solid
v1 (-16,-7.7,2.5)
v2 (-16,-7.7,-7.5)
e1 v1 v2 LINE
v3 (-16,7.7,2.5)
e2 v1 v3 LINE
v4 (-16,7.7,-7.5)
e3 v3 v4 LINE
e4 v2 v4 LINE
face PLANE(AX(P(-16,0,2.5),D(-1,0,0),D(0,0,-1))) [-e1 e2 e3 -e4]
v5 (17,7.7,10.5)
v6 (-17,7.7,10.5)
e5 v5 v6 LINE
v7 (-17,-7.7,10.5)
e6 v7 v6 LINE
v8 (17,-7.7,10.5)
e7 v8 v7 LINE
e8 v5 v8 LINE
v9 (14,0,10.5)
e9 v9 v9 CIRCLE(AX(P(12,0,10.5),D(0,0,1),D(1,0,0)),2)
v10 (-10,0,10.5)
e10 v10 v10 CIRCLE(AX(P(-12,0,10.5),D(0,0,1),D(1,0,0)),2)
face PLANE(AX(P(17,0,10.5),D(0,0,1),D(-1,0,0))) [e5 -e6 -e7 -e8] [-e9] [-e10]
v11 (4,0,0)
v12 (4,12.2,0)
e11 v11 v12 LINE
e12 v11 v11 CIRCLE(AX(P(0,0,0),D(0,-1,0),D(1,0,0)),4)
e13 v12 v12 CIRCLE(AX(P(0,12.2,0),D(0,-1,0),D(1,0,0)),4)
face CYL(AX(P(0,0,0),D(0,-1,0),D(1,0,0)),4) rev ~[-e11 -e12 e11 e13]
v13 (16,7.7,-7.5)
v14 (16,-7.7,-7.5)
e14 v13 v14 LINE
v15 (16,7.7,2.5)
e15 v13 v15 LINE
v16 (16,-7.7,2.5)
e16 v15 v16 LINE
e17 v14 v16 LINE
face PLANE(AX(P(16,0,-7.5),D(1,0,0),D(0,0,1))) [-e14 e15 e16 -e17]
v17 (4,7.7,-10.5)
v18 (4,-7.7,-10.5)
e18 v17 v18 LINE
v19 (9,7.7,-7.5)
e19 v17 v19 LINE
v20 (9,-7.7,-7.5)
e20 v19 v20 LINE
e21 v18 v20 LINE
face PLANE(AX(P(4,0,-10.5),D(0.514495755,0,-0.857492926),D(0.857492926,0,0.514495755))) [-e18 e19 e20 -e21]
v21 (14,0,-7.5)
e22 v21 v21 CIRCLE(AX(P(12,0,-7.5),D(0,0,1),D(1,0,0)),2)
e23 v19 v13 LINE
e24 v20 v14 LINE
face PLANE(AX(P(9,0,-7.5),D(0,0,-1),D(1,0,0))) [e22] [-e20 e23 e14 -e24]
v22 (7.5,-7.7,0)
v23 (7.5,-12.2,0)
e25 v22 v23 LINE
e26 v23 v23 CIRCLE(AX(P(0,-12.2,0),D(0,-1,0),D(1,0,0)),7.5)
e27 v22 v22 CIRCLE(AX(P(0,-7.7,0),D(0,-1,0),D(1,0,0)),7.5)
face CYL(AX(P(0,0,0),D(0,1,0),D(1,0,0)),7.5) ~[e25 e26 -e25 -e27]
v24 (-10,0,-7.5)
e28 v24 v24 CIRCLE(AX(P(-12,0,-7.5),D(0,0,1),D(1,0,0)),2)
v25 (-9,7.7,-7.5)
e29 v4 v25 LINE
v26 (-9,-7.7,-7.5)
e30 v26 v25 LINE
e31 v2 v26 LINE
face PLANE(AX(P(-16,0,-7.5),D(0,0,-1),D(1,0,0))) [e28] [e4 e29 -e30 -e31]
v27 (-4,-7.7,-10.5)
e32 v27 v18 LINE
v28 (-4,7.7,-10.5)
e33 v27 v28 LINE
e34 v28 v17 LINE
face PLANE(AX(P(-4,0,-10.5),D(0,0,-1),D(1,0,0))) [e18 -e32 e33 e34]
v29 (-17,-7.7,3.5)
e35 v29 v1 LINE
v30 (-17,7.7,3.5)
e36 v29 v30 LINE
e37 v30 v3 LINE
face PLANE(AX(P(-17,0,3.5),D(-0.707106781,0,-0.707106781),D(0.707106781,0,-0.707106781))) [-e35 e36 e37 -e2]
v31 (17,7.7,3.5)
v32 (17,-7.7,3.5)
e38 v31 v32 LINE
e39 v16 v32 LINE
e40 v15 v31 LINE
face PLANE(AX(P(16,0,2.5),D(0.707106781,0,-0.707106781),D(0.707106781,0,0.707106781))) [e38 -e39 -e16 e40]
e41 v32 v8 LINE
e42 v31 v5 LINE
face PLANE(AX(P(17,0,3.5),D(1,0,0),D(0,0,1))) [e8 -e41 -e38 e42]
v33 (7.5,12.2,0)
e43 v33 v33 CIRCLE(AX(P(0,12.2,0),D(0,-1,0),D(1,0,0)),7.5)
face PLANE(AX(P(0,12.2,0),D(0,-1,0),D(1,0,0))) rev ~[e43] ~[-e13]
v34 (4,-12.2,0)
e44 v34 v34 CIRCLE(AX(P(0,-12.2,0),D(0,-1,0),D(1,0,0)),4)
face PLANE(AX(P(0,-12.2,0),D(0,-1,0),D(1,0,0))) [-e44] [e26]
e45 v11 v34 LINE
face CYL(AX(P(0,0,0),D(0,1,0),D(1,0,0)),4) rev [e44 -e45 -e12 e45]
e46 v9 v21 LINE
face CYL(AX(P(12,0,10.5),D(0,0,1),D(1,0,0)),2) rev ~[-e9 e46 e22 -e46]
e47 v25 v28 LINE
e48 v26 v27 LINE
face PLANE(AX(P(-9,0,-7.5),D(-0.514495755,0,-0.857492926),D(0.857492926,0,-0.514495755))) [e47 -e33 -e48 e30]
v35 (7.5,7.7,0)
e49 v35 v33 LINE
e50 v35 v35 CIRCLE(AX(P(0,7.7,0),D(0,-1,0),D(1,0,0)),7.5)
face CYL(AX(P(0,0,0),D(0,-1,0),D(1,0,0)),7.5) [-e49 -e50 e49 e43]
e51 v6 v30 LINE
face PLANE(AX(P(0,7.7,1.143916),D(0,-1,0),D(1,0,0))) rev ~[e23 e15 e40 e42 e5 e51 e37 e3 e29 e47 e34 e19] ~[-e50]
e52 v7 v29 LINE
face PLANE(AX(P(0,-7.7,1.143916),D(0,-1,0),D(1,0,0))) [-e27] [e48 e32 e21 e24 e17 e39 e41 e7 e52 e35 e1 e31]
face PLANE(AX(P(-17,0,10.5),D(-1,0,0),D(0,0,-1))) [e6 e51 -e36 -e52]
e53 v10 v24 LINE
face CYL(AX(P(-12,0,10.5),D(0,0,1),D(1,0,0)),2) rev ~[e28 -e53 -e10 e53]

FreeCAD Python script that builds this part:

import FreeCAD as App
import Part
import Sketcher
Q = App.Units.Quantity

doc = App.newDocument("Part")
body = doc.addObject("PartDesign::Body", "Body")

# Sketch on XZ plane
sketch1 = body.newObject("Sketcher::SketchObject", "Sketch")
sketch1.AttachmentSupport = (doc.getObject("XZ_Plane"), [""])
sketch1.MapMode = "FlatFace"
sketch1.addGeometry(Part.LineSegment(App.Vector(-4, -10.5, 0), App.Vector(4, -10.5, 0)), False)
sketch1.addGeometry(Part.LineSegment(App.Vector(4, -10.5, 0), App.Vector(9, -7.5, 0)), False)
sketch1.addGeometry(Part.LineSegment(App.Vector(9, -7.5, 0), App.Vector(16, -7.5, 0)), False)
sketch1.addGeometry(Part.LineSegment(App.Vector(16, -7.5, 0), App.Vector(16, 2.5, 0)), False)
sketch1.addGeometry(Part.LineSegment(App.Vector(16, 2.5, 0), App.Vector(17, 3.5, 0)), False)
sketch1.addGeometry(Part.LineSegment(App.Vector(17, 3.5, 0), App.Vector(17, 10.5, 0)), False)
sketch1.addGeometry(Part.LineSegment(App.Vector(17, 10.5, 0), App.Vector(-17, 10.5, 0)), False)
sketch1.addGeometry(Part.LineSegment(App.Vector(-17, 10.5, 0), App.Vector(-17, 3.5, 0)), False)
sketch1.addGeometry(Part.LineSegment(App.Vector(-17, 3.5, 0), App.Vector(-16, 2.5, 0)), False)
sketch1.addGeometry(Part.LineSegment(App.Vector(-16, 2.5, 0), App.Vector(-16, -7.5, 0)), False)
sketch1.addGeometry(Part.LineSegment(App.Vector(-16, -7.5, 0), App.Vector(-9, -7.5, 0)), False)
sketch1.addGeometry(Part.LineSegment(App.Vector(-9, -7.5, 0), App.Vector(-4, -10.5, 0)), False)
sketch1.addGeometry(Part.Circle(App.Vector(0, 0, 0), App.Vector(0, 0, 1), 7.5), False)
sketch1.addConstraint(Sketcher.Constraint("Coincident", 0, 2, 1, 1))
sketch1.addConstraint(Sketcher.Constraint("Coincident", 1, 2, 2, 1))
sketch1.addConstraint(Sketcher.Constraint("Coincident", 2, 2, 3, 1))
sketch1.addConstraint(Sketcher.Constraint("Coincident", 3, 2, 4, 1))
sketch1.addConstraint(Sketcher.Constraint("Coincident", 4, 2, 5, 1))
sketch1.addConstraint(Sketcher.Constraint("Coincident", 5, 2, 6, 1))
sketch1.addConstraint(Sketcher.Constraint("Coincident", 6, 2, 7, 1))
sketch1.addConstraint(Sketcher.Constraint("Coincident", 7, 2, 8, 1))
sketch1.addConstraint(Sketcher.Constraint("Coincident", 8, 2, 9, 1))
sketch1.addConstraint(Sketcher.Constraint("Coincident", 9, 2, 10, 1))
sketch1.addConstraint(Sketcher.Constraint("Coincident", 10, 2, 11, 1))
sketch1.addConstraint(Sketcher.Constraint("Coincident", 11, 2, 0, 1))
sketch1.addConstraint(Sketcher.Constraint("Horizontal", 0))
sketch1.addConstraint(Sketcher.Constraint("Horizontal", 2))
sketch1.addConstraint(Sketcher.Constraint("Vertical", 3))
sketch1.addConstraint(Sketcher.Constraint("Vertical", 5))
sketch1.addConstraint(Sketcher.Constraint("Horizontal", 6))
sketch1.addConstraint(Sketcher.Constraint("Vertical", 7))
sketch1.addConstraint(Sketcher.Constraint("Vertical", 9))
sketch1.addConstraint(Sketcher.Constraint("Horizontal", 10))
sketch1.addConstraint(Sketcher.Constraint("Coincident", 12, 3, -1, 1))
sketch1.addConstraint(Sketcher.Constraint("Symmetric", 4, 2, 7, 2, -2))
sketch1.addConstraint(Sketcher.Constraint("Symmetric", 3, 2, 8, 2, -2))
sketch1.addConstraint(Sketcher.Constraint("Symmetric", 1, 2, 10, 2, -2))
sketch1.addConstraint(Sketcher.Constraint("Perpendicular", 4, 8))
sketch1.addConstraint(Sketcher.Constraint("Equal", 10, 5))
sketch1.addConstraint(Sketcher.Constraint("Equal", 1, 11))
sketch1.addConstraint(Sketcher.Constraint("Diameter", 12, Q("15 mm")))
sketch1.addConstraint(Sketcher.Constraint("DistanceX", 0, 1, 0, 2, Q("8 mm")))
sketch1.addConstraint(Sketcher.Constraint("DistanceX", 2, 1, 2, 2, Q("7 mm")))
sketch1.addConstraint(Sketcher.Constraint("DistanceX", 6, 2, 6, 1, Q("34 mm")))
sketch1.addConstraint(Sketcher.Constraint("DistanceY", 3, 1, 3, 2, Q("10 mm")))
sketch1.addConstraint(Sketcher.Constraint("DistanceX", -1, 1, 1, 2, Q("9 mm")))
sketch1.addConstraint(Sketcher.Constraint("DistanceY", 0, 2, 1, 2, Q("3 mm")))
sketch1.addConstraint(Sketcher.Constraint("DistanceY", 0, 2, -1, 1, Q("10.5 mm")))
pad1 = body.newObject("PartDesign::Pad", "Pad")
pad1.Profile = sketch1
pad1.Type = "TwoLengths"
pad1.Length = 7.7
pad1.Length2 = 7.7

# Sketch on XY plane
sketch2 = body.newObject("Sketcher::SketchObject", "Sketch001")
sketch2.AttachmentSupport = (doc.getObject("XY_Plane"), [""])
sketch2.MapMode = "FlatFace"
sketch2.AttachmentOffset = App.Placement(App.Vector(0, 0, 10.5), App.Rotation())
sketch2.addGeometry(Part.Circle(App.Vector(-12, 0, 0), App.Vector(0, 0, 1), 2), False)
sketch2.addGeometry(Part.Circle(App.Vector(12, 0, 0), App.Vector(0, 0, 1), 2), False)
sketch2.addConstraint(Sketcher.Constraint("Equal", 0, 1))
sketch2.addConstraint(Sketcher.Constraint("Symmetric", 0, 3, 1, 3, -1, 1))
sketch2.addConstraint(Sketcher.Constraint("PointOnObject", 0, 3, -1))
sketch2.addConstraint(Sketcher.Constraint("Diameter", 0, Q("4 mm")))
sketch2.addConstraint(Sketcher.Constraint("DistanceX", 0, 3, -1, 1, Q("12 mm")))
pocket1 = body.newObject("PartDesign::Pocket", "Pocket")
pocket1.Profile = sketch2
pocket1.Length = 25

# Sketch on XZ plane
sketch3 = body.newObject("Sketcher::SketchObject", "Sketch002")
sketch3.AttachmentSupport = (doc.getObject("XZ_Plane"), [""])
sketch3.MapMode = "FlatFace"
sketch3.addGeometry(Part.Circle(App.Vector(0, 0, 0), App.Vector(0, 0, 1), 7.5), False)
sketch3.addGeometry(Part.Circle(App.Vector(0, 0, 0), App.Vector(0, 0, 1), 4), False)
sketch3.addConstraint(Sketcher.Constraint("Coincident", 0, 3, -1, 1))
sketch3.addConstraint(Sketcher.Constraint("Coincident", 1, 3, -1, 1))
sketch3.addConstraint(Sketcher.Constraint("Diameter", 0, Q("15 mm")))
sketch3.addConstraint(Sketcher.Constraint("Diameter", 1, Q("8 mm")))
pad2 = body.newObject("PartDesign::Pad", "Pad001")
pad2.Profile = sketch3
pad2.Type = "TwoLengths"
pad2.Length = 12.2
pad2.Length2 = 12.2

doc.recompute()
